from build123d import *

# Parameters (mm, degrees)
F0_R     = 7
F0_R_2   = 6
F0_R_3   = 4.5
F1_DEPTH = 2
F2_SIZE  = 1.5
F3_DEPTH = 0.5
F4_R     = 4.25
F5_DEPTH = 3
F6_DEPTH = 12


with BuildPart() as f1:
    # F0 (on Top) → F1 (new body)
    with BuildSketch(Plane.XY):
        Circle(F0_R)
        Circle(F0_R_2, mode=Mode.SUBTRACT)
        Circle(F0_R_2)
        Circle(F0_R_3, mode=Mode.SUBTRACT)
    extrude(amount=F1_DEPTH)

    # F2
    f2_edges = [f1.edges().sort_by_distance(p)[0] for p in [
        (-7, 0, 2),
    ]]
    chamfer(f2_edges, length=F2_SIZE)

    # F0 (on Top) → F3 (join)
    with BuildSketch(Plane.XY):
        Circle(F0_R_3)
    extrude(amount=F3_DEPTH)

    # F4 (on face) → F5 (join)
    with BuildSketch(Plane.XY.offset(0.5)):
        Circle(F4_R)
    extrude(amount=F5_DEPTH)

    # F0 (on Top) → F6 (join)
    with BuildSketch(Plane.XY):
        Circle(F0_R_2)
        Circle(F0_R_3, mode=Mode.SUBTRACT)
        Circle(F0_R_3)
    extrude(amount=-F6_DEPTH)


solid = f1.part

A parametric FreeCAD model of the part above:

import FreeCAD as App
import Part
import Sketcher

V = App.Vector


def edges_at(feature, points):
    """Names of the edges that pass closest to the given points."""
    edges = feature.Shape.Edges
    near = lambda p: min(range(len(edges)), key=lambda i: edges[i].distToShape(Part.Vertex(*p))[0])
    return sorted({f"Edge{near(p) + 1}" for p in points})

doc = App.newDocument("Part")
body = doc.addObject("PartDesign::Body", "Body")

sketch1 = doc.addObject("Sketcher::SketchObject", "Sketch")
body.addObject(sketch1)
sketch1.AttachmentSupport = (doc.XY_Plane, [""])
sketch1.MapMode = "FlatFace"
sketch1.addGeometry([
    Part.Circle(V(0, 0, 0), V(0, 0, 1), 7),
    Part.Circle(V(0, 0, 0), V(0, 0, 1), 4.5),
], False)
sketch1.addConstraint([
    Sketcher.Constraint("Coincident", 0, 3, -1, 1),
    Sketcher.Constraint("Coincident", 1, 3, -1, 1),
    Sketcher.Constraint("Diameter", 0, 14.0),
    Sketcher.Constraint("Diameter", 1, 9.0),
])
pad1 = doc.addObject("PartDesign::Pad", "Pad")
body.addObject(pad1)
pad1.Profile = sketch1
pad1.Length = 2
doc.recompute()

chamfer = doc.addObject("PartDesign::Chamfer", "Chamfer")
body.addObject(chamfer)
chamfer.Base = (pad1, edges_at(pad1, [(-7, 0, 2)]))
chamfer.Size = 1.5

sketch2 = doc.addObject("Sketcher::SketchObject", "Sketch001")
body.addObject(sketch2)
sketch2.AttachmentSupport = (doc.XY_Plane, [""])
sketch2.MapMode = "FlatFace"
sketch2.addGeometry(Part.Circle(V(0, 0, 0), V(0, 0, 1), 4.5), False)
sketch2.addConstraint([
    Sketcher.Constraint("Coincident", 0, 3, -1, 1),
    Sketcher.Constraint("Diameter", 0, 9.0),
])
pad2 = doc.addObject("PartDesign::Pad", "Pad001")
body.addObject(pad2)
pad2.Profile = sketch2
pad2.Length = 0.5

sketch3 = doc.addObject("Sketcher::SketchObject", "Sketch002")
body.addObject(sketch3)
sketch3.AttachmentSupport = (doc.XY_Plane, [""])
sketch3.MapMode = "FlatFace"
sketch3.AttachmentOffset = App.Placement(V(0, 0, 0.5), App.Rotation())
sketch3.addGeometry(Part.Circle(V(0, 0, 0), V(0, 0, 1), 4.25), False)
sketch3.addConstraint([
    Sketcher.Constraint("Coincident", 0, 3, -1, 1),
    Sketcher.Constraint("Diameter", 0, 8.5),
])
pad3 = doc.addObject("PartDesign::Pad", "Pad002")
body.addObject(pad3)
pad3.Profile = sketch3
pad3.Length = 3

sketch4 = doc.addObject("Sketcher::SketchObject", "Sketch003")
body.addObject(sketch4)
sketch4.AttachmentSupport = (doc.XY_Plane, [""])
sketch4.MapMode = "FlatFace"
sketch4.addGeometry(Part.Circle(V(0, 0, 0), V(0, 0, 1), 6), False)
sketch4.addConstraint([
    Sketcher.Constraint("Coincident", 0, 3, -1, 1),
    Sketcher.Constraint("Diameter", 0, 12.0),
])
pad4 = doc.addObject("PartDesign::Pad", "Pad003")
body.addObject(pad4)
pad4.Profile = sketch4
pad4.Length = 12
pad4.Reversed = True

doc.recompute()
